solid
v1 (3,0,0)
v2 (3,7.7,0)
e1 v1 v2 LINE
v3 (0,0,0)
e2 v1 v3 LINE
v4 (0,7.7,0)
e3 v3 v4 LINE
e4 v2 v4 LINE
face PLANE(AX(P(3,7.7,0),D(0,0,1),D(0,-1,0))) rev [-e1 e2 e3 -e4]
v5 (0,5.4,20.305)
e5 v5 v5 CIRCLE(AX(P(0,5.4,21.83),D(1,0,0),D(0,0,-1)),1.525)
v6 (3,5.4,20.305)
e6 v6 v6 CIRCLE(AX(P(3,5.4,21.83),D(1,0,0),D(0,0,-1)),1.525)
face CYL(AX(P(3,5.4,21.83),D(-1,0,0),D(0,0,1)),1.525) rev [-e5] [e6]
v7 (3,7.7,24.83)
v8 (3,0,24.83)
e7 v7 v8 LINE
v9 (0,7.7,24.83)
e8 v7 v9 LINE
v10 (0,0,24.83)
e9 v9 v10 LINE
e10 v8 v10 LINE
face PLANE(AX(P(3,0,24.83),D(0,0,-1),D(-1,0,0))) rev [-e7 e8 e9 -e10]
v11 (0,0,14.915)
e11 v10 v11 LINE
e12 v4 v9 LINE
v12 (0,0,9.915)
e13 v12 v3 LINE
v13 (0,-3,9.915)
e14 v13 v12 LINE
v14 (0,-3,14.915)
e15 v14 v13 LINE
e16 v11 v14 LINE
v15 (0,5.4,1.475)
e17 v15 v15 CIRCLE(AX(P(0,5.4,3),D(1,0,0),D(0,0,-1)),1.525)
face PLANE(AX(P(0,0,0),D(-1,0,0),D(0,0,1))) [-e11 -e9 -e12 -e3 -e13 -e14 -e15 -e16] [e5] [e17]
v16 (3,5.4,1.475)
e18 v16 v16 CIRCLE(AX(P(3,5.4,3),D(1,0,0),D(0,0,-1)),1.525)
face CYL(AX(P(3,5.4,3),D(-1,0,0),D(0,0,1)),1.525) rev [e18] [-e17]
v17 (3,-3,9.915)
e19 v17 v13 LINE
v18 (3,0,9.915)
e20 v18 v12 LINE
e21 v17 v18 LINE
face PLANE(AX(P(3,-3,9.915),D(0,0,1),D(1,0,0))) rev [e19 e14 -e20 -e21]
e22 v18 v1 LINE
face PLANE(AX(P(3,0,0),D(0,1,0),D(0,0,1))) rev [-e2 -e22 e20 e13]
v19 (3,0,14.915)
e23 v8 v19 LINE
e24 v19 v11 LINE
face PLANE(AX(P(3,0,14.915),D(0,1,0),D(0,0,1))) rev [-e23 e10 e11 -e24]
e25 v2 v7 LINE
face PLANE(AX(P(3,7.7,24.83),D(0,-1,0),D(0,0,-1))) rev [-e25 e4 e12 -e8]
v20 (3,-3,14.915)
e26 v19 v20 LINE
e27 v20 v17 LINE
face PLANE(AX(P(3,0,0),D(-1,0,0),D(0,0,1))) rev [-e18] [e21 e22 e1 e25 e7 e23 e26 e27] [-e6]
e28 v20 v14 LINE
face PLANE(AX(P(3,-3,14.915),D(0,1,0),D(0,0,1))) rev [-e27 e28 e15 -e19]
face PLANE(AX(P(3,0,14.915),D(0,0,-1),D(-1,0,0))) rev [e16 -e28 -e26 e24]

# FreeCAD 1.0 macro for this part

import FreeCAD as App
import Part
import Sketcher
from FreeCAD import Vector
Q = App.Units.Quantity

doc = App.newDocument("Part")
body = doc.addObject("PartDesign::Body", "Body")

# Sketch on YZ plane
sketch1 = body.newObject("Sketcher::SketchObject", "Sketch")
sketch1.AttachmentSupport = (doc.getObject("YZ_Plane"), [""])
sketch1.MapMode = "FlatFace"
sketch1.addGeometry([
    Part.LineSegment(Vector(0, 9.9, 0), Vector(0, 0, 0)),  # 0
    Part.LineSegment(Vector(0, 0, 0), Vector(7.7, 0, 0)),  # 1
    Part.LineSegment(Vector(7.7, 0, 0), Vector(7.7, 24.8, 0)),  # 2
    Part.LineSegment(Vector(7.7, 24.8, 0), Vector(0, 24.8, 0)),  # 3
    Part.LineSegment(Vector(0, 24.8, 0), Vector(0, 14.9, 0)),  # 4
    Part.LineSegment(Vector(0, 14.9, 0), Vector(-3, 14.9, 0)),  # 5
    Part.LineSegment(Vector(-3, 14.9, 0), Vector(-3, 9.9, 0)),  # 6
    Part.LineSegment(Vector(-3, 9.9, 0), Vector(0, 9.9, 0)),  # 7
    Part.Circle(Vector(5.4, 3, 0), Vector(0, 0, 1), 1.5),  # 8
    Part.Circle(Vector(5.4, 21.8, 0), Vector(0, 0, 1), 1.5),  # 9
], False)
sketch1.addConstraint([
    Sketcher.Constraint("Coincident", 0, 2, 1, 1),
    Sketcher.Constraint("Coincident", 1, 2, 2, 1),
    Sketcher.Constraint("Coincident", 2, 2, 3, 1),
    Sketcher.Constraint("Coincident", 3, 2, 4, 1),
    Sketcher.Constraint("Coincident", 4, 2, 5, 1),
    Sketcher.Constraint("Coincident", 5, 2, 6, 1),
    Sketcher.Constraint("Coincident", 6, 2, 7, 1),
    Sketcher.Constraint("Coincident", 7, 2, 0, 1),
    Sketcher.Constraint("Vertical", 0),
    Sketcher.Constraint("Horizontal", 1),
    Sketcher.Constraint("Vertical", 2),
    Sketcher.Constraint("Horizontal", 3),
    Sketcher.Constraint("Vertical", 4),
    Sketcher.Constraint("Horizontal", 5),
    Sketcher.Constraint("Vertical", 6),
    Sketcher.Constraint("Horizontal", 7),
    Sketcher.Constraint("Coincident", 0, 2, -1, 1),
    Sketcher.Constraint("Equal", 8, 9),
    Sketcher.Constraint("PointOnObject", 3, 2, -2),
    Sketcher.Constraint("Vertical", 8, 3, 9, 3),
    Sketcher.Constraint("Equal", 0, 4),
    Sketcher.Constraint("Diameter", 8, Q("3.05 mm")),
    Sketcher.Constraint("DistanceX", 5, 2, 5, 1, Q("3 mm")),
    Sketcher.Constraint("DistanceY", 6, 2, 6, 1, Q("5 mm")),
    Sketcher.Constraint("DistanceX", 1, 1, 1, 2, Q("7.7 mm")),
    Sketcher.Constraint("DistanceY", -1, 1, 8, 3, Q("3 mm")),
    Sketcher.Constraint("DistanceY", 9, 3, 2, 2, Q("3 mm")),
    Sketcher.Constraint("DistanceY", 2, 1, 2, 2, Q("24.83 mm")),
    Sketcher.Constraint("DistanceX", -1, 1, 8, 3, Q("5.4 mm")),
])
pad1 = body.newObject("PartDesign::Pad", "Pad")
pad1.Profile = sketch1
pad1.Length = 3

doc.recompute()
